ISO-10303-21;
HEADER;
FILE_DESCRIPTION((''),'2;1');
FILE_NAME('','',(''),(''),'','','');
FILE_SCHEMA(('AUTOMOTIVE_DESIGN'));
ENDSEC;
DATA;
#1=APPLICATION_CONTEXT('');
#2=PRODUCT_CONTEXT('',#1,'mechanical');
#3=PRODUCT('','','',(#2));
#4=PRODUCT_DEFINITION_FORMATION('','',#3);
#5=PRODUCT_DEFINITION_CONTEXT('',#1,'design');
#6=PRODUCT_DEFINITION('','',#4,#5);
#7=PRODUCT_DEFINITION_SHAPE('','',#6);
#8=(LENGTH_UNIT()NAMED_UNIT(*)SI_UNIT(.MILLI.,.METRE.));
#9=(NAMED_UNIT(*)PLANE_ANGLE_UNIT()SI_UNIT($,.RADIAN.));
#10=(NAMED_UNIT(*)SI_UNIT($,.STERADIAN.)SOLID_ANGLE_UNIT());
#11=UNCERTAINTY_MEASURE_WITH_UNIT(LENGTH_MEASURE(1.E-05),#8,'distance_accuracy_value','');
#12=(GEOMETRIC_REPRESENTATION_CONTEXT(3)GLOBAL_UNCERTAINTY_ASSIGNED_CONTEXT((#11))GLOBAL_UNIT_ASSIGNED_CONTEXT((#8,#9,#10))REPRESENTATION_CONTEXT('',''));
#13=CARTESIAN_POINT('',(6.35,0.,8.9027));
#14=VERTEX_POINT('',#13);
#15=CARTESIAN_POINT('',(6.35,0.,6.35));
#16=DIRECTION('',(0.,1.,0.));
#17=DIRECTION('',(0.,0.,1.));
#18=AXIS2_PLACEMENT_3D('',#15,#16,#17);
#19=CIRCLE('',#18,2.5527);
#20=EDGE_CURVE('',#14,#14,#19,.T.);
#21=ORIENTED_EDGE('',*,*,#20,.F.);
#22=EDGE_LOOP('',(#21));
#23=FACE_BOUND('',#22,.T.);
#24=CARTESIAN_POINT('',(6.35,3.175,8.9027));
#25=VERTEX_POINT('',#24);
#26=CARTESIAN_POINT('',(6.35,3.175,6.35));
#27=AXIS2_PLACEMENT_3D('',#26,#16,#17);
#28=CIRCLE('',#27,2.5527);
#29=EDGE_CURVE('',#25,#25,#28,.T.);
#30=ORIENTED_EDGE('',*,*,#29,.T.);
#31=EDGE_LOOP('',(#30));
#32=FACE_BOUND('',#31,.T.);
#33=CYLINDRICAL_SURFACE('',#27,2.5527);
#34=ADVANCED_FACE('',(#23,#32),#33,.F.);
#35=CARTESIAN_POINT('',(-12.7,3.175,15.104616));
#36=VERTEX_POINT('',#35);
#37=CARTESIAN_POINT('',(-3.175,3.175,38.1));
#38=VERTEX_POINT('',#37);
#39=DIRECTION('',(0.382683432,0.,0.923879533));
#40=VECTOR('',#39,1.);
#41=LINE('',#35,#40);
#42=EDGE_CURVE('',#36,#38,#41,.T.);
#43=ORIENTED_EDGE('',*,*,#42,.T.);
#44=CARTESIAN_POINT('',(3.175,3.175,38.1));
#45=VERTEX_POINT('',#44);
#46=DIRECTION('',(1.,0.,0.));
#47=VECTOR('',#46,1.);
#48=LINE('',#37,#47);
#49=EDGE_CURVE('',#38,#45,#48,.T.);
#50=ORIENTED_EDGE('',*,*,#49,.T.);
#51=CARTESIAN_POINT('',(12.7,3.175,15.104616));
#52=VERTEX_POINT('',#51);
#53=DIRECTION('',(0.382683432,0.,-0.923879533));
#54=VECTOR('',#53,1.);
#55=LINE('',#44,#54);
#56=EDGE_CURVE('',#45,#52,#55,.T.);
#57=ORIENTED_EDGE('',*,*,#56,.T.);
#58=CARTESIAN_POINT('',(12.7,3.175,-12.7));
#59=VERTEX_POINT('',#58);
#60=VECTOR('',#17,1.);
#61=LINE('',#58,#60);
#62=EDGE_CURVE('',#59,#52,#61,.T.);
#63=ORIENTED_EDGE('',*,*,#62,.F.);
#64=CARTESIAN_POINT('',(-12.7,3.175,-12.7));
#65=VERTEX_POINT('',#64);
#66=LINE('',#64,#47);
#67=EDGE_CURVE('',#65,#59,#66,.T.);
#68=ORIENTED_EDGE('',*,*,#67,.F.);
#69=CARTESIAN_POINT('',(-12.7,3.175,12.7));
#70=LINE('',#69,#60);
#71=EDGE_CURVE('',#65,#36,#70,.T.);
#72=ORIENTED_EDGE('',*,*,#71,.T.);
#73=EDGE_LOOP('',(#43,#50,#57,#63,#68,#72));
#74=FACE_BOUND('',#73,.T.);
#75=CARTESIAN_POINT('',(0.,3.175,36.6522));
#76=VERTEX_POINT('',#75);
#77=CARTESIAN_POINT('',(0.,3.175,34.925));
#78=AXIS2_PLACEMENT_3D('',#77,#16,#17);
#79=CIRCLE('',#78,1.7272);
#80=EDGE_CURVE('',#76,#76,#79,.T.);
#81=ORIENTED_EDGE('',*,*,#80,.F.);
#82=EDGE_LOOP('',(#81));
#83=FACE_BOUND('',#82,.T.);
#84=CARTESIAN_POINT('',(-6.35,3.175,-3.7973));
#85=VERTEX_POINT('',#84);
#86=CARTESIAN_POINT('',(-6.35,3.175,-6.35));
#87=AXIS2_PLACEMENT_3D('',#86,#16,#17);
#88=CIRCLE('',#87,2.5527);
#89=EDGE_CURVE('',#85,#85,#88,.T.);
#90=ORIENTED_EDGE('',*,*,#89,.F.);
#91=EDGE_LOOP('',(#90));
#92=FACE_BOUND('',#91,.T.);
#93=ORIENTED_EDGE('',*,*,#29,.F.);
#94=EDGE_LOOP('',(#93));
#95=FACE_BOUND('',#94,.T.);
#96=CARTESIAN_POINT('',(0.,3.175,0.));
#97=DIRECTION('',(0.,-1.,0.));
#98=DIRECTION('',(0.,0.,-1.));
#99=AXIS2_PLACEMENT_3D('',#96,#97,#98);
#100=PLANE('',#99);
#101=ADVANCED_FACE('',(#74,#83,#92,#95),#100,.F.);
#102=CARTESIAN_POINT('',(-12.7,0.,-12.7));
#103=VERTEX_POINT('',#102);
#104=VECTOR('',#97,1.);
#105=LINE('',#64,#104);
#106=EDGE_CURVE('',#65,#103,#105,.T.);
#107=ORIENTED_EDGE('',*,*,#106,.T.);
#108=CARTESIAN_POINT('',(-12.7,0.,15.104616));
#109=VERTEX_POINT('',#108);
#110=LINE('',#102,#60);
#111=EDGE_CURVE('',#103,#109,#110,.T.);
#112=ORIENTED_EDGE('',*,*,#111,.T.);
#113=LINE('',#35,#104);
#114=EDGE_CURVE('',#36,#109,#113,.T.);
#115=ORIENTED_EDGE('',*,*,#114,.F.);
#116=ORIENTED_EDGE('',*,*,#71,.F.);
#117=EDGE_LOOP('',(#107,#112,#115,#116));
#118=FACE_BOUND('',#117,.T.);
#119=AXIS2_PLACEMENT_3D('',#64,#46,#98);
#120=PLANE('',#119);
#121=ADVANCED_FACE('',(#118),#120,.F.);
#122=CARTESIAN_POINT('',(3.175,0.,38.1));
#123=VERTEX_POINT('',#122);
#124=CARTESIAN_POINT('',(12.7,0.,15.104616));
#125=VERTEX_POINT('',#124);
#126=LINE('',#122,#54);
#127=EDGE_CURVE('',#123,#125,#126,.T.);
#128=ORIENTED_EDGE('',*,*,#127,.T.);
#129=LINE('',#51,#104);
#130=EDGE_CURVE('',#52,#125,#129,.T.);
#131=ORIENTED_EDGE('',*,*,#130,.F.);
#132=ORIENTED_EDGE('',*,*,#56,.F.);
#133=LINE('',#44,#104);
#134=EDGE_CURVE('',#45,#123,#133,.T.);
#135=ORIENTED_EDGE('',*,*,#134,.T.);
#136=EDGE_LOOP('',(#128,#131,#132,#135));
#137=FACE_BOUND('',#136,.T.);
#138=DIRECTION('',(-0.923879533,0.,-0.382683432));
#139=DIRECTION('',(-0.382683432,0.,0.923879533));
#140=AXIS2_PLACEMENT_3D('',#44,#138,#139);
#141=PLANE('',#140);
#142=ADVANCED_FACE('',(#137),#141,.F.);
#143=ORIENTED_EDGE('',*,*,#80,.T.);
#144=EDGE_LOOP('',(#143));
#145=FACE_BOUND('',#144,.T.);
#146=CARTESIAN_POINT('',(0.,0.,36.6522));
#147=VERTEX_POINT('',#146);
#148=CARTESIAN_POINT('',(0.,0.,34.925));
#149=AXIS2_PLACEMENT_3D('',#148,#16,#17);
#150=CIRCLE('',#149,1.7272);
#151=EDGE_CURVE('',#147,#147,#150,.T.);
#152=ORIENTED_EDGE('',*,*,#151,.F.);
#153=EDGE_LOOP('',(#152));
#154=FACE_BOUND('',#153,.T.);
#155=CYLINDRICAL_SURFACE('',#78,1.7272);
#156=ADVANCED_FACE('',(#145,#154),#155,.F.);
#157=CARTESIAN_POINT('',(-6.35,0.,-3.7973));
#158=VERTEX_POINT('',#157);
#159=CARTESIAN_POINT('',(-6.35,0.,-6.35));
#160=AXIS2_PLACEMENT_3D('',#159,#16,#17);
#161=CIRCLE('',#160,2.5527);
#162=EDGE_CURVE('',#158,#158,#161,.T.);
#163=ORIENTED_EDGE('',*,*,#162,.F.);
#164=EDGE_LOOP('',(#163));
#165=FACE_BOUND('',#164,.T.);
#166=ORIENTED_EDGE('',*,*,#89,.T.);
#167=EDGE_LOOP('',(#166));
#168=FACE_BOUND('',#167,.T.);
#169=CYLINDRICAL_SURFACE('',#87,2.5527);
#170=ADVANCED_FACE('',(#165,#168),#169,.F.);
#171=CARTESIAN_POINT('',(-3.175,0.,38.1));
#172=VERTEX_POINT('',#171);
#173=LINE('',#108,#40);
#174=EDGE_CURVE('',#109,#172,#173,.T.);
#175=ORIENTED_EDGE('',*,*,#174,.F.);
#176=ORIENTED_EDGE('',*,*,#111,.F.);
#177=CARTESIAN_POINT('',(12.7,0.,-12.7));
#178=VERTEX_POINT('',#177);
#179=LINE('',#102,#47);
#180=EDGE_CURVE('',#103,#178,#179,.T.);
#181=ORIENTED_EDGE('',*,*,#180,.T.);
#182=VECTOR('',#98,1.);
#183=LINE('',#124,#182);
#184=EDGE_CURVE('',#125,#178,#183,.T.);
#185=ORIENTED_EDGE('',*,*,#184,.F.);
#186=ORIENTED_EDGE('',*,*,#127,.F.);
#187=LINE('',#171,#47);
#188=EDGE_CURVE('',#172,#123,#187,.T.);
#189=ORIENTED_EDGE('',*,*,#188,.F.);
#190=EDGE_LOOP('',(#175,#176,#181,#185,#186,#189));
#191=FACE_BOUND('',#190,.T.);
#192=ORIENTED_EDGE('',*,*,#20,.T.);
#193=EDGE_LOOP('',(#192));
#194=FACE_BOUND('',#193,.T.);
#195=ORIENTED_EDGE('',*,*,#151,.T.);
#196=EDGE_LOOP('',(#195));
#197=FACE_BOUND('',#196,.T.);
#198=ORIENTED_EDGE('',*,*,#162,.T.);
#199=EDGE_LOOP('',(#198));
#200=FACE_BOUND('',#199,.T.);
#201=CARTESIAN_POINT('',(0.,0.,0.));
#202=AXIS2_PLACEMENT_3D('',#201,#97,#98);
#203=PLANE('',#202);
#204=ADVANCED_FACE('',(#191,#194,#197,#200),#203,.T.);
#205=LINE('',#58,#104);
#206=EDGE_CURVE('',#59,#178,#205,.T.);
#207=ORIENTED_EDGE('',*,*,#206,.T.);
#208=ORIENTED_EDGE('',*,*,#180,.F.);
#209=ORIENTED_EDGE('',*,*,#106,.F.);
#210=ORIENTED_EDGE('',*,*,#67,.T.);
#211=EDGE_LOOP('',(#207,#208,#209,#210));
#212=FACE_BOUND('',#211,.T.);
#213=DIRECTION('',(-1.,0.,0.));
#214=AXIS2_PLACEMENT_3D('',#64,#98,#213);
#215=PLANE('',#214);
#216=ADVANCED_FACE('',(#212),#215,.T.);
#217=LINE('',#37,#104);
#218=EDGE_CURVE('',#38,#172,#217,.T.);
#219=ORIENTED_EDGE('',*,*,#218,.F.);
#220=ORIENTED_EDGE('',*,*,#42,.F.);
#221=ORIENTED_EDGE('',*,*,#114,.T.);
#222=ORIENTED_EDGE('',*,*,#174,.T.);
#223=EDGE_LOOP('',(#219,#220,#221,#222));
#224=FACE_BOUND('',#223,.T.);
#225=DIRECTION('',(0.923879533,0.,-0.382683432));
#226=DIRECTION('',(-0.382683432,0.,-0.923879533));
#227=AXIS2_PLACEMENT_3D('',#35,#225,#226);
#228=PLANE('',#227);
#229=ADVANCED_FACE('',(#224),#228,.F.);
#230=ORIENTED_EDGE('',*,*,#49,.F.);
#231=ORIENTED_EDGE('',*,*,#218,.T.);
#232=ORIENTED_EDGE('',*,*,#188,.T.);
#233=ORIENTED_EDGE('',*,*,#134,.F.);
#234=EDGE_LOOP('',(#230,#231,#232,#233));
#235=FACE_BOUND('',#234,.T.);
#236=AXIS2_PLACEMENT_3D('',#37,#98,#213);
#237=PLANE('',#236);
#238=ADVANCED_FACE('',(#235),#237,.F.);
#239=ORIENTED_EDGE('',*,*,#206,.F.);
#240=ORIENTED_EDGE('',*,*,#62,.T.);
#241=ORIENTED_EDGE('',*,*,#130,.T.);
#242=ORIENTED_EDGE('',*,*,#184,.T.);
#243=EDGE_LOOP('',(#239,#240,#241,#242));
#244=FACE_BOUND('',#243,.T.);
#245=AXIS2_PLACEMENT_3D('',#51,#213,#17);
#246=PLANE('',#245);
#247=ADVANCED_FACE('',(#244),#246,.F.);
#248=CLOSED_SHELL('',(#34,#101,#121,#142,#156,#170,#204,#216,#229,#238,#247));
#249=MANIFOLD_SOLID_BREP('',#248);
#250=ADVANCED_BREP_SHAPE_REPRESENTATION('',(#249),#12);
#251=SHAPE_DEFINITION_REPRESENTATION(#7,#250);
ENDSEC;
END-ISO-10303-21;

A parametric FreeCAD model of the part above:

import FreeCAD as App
import Part
import Sketcher
from FreeCAD import Vector
Q = App.Units.Quantity

doc = App.newDocument("Part")
body = doc.addObject("PartDesign::Body", "Body")

sketch1 = body.newObject("Sketcher::SketchObject", "Sketch")
sketch1.AttachmentSupport = (doc.getObject("XZ_Plane"), [""])
sketch1.MapMode = "FlatFace"
sketch1.addGeometry([
    Part.LineSegment(Vector(-12.7, 15.104616, 0), Vector(-3.175, 38.1, 0)),
    Part.LineSegment(Vector(-3.175, 38.1, 0), Vector(3.175, 38.1, 0)),
    Part.LineSegment(Vector(3.175, 38.1, 0), Vector(12.7, 15.104616, 0)),
    Part.LineSegment(Vector(12.7, 15.104616, 0), Vector(12.7, -12.7, 0)),
    Part.LineSegment(Vector(12.7, -12.7, 0), Vector(-12.7, -12.7, 0)),
    Part.LineSegment(Vector(-12.7, -12.7, 0), Vector(-12.7, 15.104616, 0)),
], False)
sketch1.addConstraint([
    Sketcher.Constraint("Coincident", 0, 2, 1, 1),
    Sketcher.Constraint("Coincident", 1, 2, 2, 1),
    Sketcher.Constraint("Coincident", 2, 2, 3, 1),
    Sketcher.Constraint("Coincident", 3, 2, 4, 1),
    Sketcher.Constraint("Coincident", 4, 2, 5, 1),
    Sketcher.Constraint("Coincident", 5, 2, 0, 1),
    Sketcher.Constraint("Horizontal", 1),
    Sketcher.Constraint("Vertical", 3),
    Sketcher.Constraint("Horizontal", 4),
    Sketcher.Constraint("Vertical", 5),
    Sketcher.Constraint("Symmetric", 2, 2, 5, 2, -2),
    Sketcher.Constraint("Equal", 0, 2),
    Sketcher.Constraint("DistanceX", 4, 2, 4, 1, Q("1 in")),
    Sketcher.Constraint("DistanceY", 3, 2, 1, 2, Q("2 in")),
    Sketcher.Constraint("DistanceX", 1, 1, 1, 2, Q("0.25 in")),
    Sketcher.Constraint("DistanceY", -1, 1, 0, 2, Q("1.5 in")),
    Sketcher.Constraint("Angle", 0, Q("67.5 deg")),
])
pad1 = body.newObject("PartDesign::Pad", "Pad")
pad1.Profile = sketch1
pad1.Length = Q("0.125 in")
pad1.Reversed = True

sketch2 = body.newObject("Sketcher::SketchObject", "Sketch001")
sketch2.AttachmentSupport = (doc.getObject("XZ_Plane"), [""])
sketch2.MapMode = "FlatFace"
sketch2.AttachmentOffset = App.Placement(Vector(0, 0, -0.125 * 25.4), App.Rotation())
sketch2.addGeometry([
    Part.Circle(Vector(-6.35, -6.35, 0), Vector(0, 0, 1), 2.5527),
    Part.Circle(Vector(6.35, 6.35, 0), Vector(0, 0, 1), 2.5527),
], False)
sketch2.addConstraint([
    Sketcher.Constraint("Equal", 0, 1),
    Sketcher.Constraint("Symmetric", 0, 3, 1, 3, -1, 1),
    Sketcher.Constraint("Diameter", 0, Q("0.201 in")),
    Sketcher.Constraint("DistanceX", 0, 3, 1, 3, Q("0.5 in")),
    Sketcher.Constraint("DistanceY", 0, 3, 1, 3, Q("0.5 in")),
])
doc.recompute()
hole = body.newObject("PartDesign::Hole", "Hole")
hole.Profile = sketch2
hole.ThreadType = "None"
hole.Diameter = Q("0.201 in")
hole.DepthType = "ThroughAll"
hole.Reversed = True

sketch3 = body.newObject("Sketcher::SketchObject", "Sketch002")
sketch3.AttachmentSupport = (doc.getObject("XZ_Plane"), [""])
sketch3.MapMode = "FlatFace"
sketch3.AttachmentOffset = App.Placement(Vector(0, 0, -0.125 * 25.4), App.Rotation())
sketch3.addGeometry(Part.Circle(Vector(0, 34.925, 0), Vector(0, 0, 1), 1.7272), False)
sketch3.addConstraint([
    Sketcher.Constraint("PointOnObject", 0, 3, -2),
    Sketcher.Constraint("Diameter", 0, Q("0.136 in")),
    Sketcher.Constraint("DistanceY", -1, 1, 0, 3, Q("1.375 in")),
])
doc.recompute()
hole2 = body.newObject("PartDesign::Hole", "Hole001")
hole2.Profile = sketch3
hole2.ThreadType = "None"
hole2.Diameter = Q("0.136 in")
hole2.DepthType = "ThroughAll"
hole2.Reversed = True

doc.recompute()
